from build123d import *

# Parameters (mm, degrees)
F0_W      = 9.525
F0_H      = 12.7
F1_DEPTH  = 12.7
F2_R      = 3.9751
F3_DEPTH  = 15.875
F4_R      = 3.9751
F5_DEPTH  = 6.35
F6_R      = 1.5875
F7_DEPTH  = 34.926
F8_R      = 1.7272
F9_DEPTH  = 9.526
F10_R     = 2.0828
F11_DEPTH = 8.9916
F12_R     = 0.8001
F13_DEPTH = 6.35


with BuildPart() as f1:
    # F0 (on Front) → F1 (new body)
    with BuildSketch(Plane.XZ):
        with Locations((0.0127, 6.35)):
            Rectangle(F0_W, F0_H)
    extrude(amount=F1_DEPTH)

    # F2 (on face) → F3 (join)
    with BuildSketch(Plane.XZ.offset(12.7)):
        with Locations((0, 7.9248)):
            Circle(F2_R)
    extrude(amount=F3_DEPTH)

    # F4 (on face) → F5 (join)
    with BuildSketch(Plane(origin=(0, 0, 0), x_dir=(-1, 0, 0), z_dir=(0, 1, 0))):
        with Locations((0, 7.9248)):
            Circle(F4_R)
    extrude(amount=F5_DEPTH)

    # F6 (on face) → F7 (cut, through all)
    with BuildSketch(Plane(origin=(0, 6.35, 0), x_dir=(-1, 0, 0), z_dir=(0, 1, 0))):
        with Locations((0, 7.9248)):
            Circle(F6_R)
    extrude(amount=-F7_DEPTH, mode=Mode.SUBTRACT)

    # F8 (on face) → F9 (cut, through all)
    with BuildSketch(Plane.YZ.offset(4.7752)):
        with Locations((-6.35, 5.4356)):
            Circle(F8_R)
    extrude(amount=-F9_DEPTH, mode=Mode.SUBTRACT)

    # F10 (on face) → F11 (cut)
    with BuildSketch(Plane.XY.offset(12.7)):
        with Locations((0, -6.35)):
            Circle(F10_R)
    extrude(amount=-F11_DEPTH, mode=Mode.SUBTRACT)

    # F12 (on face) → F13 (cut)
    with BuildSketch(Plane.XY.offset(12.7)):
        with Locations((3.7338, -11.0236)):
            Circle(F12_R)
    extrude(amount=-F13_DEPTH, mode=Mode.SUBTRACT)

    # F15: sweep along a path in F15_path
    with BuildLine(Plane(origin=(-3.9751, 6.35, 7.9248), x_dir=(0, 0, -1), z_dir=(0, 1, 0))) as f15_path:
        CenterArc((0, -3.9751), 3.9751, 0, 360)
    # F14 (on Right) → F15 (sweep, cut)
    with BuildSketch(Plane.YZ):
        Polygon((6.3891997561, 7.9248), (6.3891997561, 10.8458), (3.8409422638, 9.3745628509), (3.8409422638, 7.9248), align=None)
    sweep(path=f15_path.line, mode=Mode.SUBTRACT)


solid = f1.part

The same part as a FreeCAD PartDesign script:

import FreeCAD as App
import Part
import Sketcher
Q = App.Units.Quantity


def add_polygon(sketch, points):
    """Adds a closed chain of lines whose ends are joined by coincident constraints."""
    first, n = sketch.GeometryCount, len(points)
    for a, b in zip(points, points[1:] + points[:1]):
        sketch.addGeometry(Part.LineSegment(App.Vector(*a, 0), App.Vector(*b, 0)), False)
    for i in range(n):
        sketch.addConstraint(Sketcher.Constraint("Coincident", first + i, 2, first + (i + 1) % n, 1))

doc = App.newDocument("Part")
body = doc.addObject("PartDesign::Body", "Body")

sketch1 = body.newObject("Sketcher::SketchObject", "Sketch")
sketch1.AttachmentSupport = (doc.getObject("XZ_Plane"), [""])
sketch1.MapMode = "FlatFace"
add_polygon(sketch1, [(-5, 13), (-5, 0), (5, 0), (5, 13)])
sketch1.addConstraint([
    Sketcher.Constraint("Vertical", 0),
    Sketcher.Constraint("Horizontal", 1),
    Sketcher.Constraint("Vertical", 2),
    Sketcher.Constraint("Horizontal", 3),
    Sketcher.Constraint("PointOnObject", 0, 2, -1),
    Sketcher.Constraint("DistanceY", 0, 2, 0, 1, Q("0.5 in")),
    Sketcher.Constraint("DistanceX", 1, 1, 1, 2, Q("0.375 in")),
    Sketcher.Constraint("DistanceX", 0, 2, -1, 1, Q("0.187 in")),
])
pad1 = body.newObject("PartDesign::Pad", "Pad")
pad1.Profile = sketch1
pad1.Length = Q("0.5 in")

sketch2 = body.newObject("Sketcher::SketchObject", "Sketch001")
sketch2.AttachmentSupport = (doc.getObject("XZ_Plane"), [""])
sketch2.MapMode = "FlatFace"
sketch2.AttachmentOffset = App.Placement(App.Vector(0, 0, 0.5 * 25.4), App.Rotation())
sketch2.addGeometry(Part.Circle(App.Vector(0, 7.9, 0), App.Vector(0, 0, 1), 4), False)
sketch2.addConstraint([
    Sketcher.Constraint("PointOnObject", 0, 3, -2),
    Sketcher.Constraint("Diameter", 0, Q("0.313 in")),
    Sketcher.Constraint("DistanceY", -1, 1, 0, 3, Q("0.312 in")),
])
pad2 = body.newObject("PartDesign::Pad", "Pad001")
pad2.Profile = sketch2
pad2.Length = Q("0.625 in")

sketch3 = body.newObject("Sketcher::SketchObject", "Sketch002")
sketch3.AttachmentSupport = (doc.getObject("XZ_Plane"), [""])
sketch3.MapMode = "FlatFace"
sketch3.addGeometry(Part.Circle(App.Vector(0, 7.9, 0), App.Vector(0, 0, 1), 4), False)
sketch3.addConstraint([
    Sketcher.Constraint("PointOnObject", 0, 3, -2),
    Sketcher.Constraint("Diameter", 0, Q("0.313 in")),
    Sketcher.Constraint("DistanceY", -1, 1, 0, 3, Q("0.312 in")),
])
pad3 = body.newObject("PartDesign::Pad", "Pad002")
pad3.Profile = sketch3
pad3.Length = Q("0.25 in")
pad3.Reversed = True

sketch4 = body.newObject("Sketcher::SketchObject", "Sketch003")
sketch4.AttachmentSupport = (doc.getObject("XZ_Plane"), [""])
sketch4.MapMode = "FlatFace"
sketch4.AttachmentOffset = App.Placement(App.Vector(0, 0, -0.25 * 25.4), App.Rotation())
sketch4.addGeometry(Part.Circle(App.Vector(0, 7.9, 0), App.Vector(0, 0, 1), 1.6), False)
sketch4.addConstraint([
    Sketcher.Constraint("PointOnObject", 0, 3, -2),
    Sketcher.Constraint("Diameter", 0, Q("0.125 in")),
    Sketcher.Constraint("DistanceY", -1, 1, 0, 3, Q("0.312 in")),
])
pocket1 = body.newObject("PartDesign::Pocket", "Pocket")
pocket1.Profile = sketch4
pocket1.Type = "ThroughAll"
pocket1.Reversed = True

sketch5 = body.newObject("Sketcher::SketchObject", "Sketch004")
sketch5.AttachmentSupport = (doc.getObject("YZ_Plane"), [""])
sketch5.MapMode = "FlatFace"
sketch5.AttachmentOffset = App.Placement(App.Vector(0, 0, 0.188 * 25.4), App.Rotation())
sketch5.addGeometry(Part.Circle(App.Vector(-6.3, 5.4, 0), App.Vector(0, 0, 1), 1.7), False)
sketch5.addConstraint([
    Sketcher.Constraint("Diameter", 0, Q("0.136 in")),
    Sketcher.Constraint("DistanceX", 0, 3, -1, 1, Q("0.25 in")),
    Sketcher.Constraint("DistanceY", -1, 1, 0, 3, Q("0.214 in")),
])
pocket2 = body.newObject("PartDesign::Pocket", "Pocket001")
pocket2.Profile = sketch5
pocket2.Type = "ThroughAll"

sketch6 = body.newObject("Sketcher::SketchObject", "Sketch005")
sketch6.AttachmentSupport = (doc.getObject("XY_Plane"), [""])
sketch6.MapMode = "FlatFace"
sketch6.AttachmentOffset = App.Placement(App.Vector(0, 0, 0.5 * 25.4), App.Rotation())
sketch6.addGeometry(Part.Circle(App.Vector(0, -6.3, 0), App.Vector(0, 0, 1), 2.1), False)
sketch6.addConstraint([
    Sketcher.Constraint("PointOnObject", 0, 3, -2),
    Sketcher.Constraint("Diameter", 0, Q("0.164 in")),
    Sketcher.Constraint("DistanceY", 0, 3, -1, 1, Q("0.25 in")),
])
pocket3 = body.newObject("PartDesign::Pocket", "Pocket002")
pocket3.Profile = sketch6
pocket3.Length = Q("0.354 in")

sketch7 = body.newObject("Sketcher::SketchObject", "Sketch006")
sketch7.AttachmentSupport = (doc.getObject("XY_Plane"), [""])
sketch7.MapMode = "FlatFace"
sketch7.AttachmentOffset = App.Placement(App.Vector(0, 0, 0.5 * 25.4), App.Rotation())
sketch7.addGeometry(Part.Circle(App.Vector(3.7, -11, 0), App.Vector(0, 0, 1), 0.8), False)
sketch7.addConstraint([
    Sketcher.Constraint("Diameter", 0, Q("0.063 in")),
    Sketcher.Constraint("DistanceX", -1, 1, 0, 3, Q("0.147 in")),
    Sketcher.Constraint("DistanceY", 0, 3, -1, 1, Q("0.434 in")),
])
pocket4 = body.newObject("PartDesign::Pocket", "Pocket003")
pocket4.Profile = sketch7
pocket4.Length = Q("0.25 in")

sketch8 = body.newObject("Sketcher::SketchObject", "Sketch007")
sketch8.AttachmentSupport = (doc.getObject("YZ_Plane"), [""])
sketch8.MapMode = "FlatFace"
add_polygon(sketch8, [(6.4, 7.9), (6.4, 10.8), (3.8, 9.4), (3.8, 7.9)])
sketch8.addConstraint([
    Sketcher.Constraint("Vertical", 0),
    Sketcher.Constraint("Vertical", 2),
    Sketcher.Constraint("Horizontal", 3),
    Sketcher.Constraint("Angle", 1, Q("-150 deg")),
    Sketcher.Constraint("DistanceY", 0, 1, 0, 2, Q("0.115 in")),
    Sketcher.Constraint("DistanceY", -1, 1, 0, 2, Q("0.427 in")),
    Sketcher.Constraint("DistanceX", -1, 1, 0, 2, Q("6.3892 mm")),
    Sketcher.Constraint("DistanceX", 3, 1, 3, 2, Q("2.548257 mm")),
])

sketch9 = body.newObject("Sketcher::SketchObject", "Sketch008")
sketch9.AttachmentSupport = (doc.getObject("XZ_Plane"), [""])
sketch9.MapMode = "FlatFace"
sketch9.AttachmentOffset = App.Placement(App.Vector(0, 0, -0.25 * 25.4), App.Rotation())
sketch9.addGeometry(Part.Circle(App.Vector(0, 7.9, 0), App.Vector(0, 0, 1), 4), False)
sketch9.addConstraint([
    Sketcher.Constraint("PointOnObject", 0, 3, -2),
    Sketcher.Constraint("Diameter", 0, Q("0.313 in")),
    Sketcher.Constraint("DistanceY", -1, 1, 0, 3, Q("0.312 in")),
])
doc.recompute()

subtractivepipe = body.newObject("PartDesign::SubtractivePipe", "SubtractivePipe")
subtractivepipe.Profile = sketch8
subtractivepipe.Spine = (sketch9, ["Edge1"])

doc.recompute()
